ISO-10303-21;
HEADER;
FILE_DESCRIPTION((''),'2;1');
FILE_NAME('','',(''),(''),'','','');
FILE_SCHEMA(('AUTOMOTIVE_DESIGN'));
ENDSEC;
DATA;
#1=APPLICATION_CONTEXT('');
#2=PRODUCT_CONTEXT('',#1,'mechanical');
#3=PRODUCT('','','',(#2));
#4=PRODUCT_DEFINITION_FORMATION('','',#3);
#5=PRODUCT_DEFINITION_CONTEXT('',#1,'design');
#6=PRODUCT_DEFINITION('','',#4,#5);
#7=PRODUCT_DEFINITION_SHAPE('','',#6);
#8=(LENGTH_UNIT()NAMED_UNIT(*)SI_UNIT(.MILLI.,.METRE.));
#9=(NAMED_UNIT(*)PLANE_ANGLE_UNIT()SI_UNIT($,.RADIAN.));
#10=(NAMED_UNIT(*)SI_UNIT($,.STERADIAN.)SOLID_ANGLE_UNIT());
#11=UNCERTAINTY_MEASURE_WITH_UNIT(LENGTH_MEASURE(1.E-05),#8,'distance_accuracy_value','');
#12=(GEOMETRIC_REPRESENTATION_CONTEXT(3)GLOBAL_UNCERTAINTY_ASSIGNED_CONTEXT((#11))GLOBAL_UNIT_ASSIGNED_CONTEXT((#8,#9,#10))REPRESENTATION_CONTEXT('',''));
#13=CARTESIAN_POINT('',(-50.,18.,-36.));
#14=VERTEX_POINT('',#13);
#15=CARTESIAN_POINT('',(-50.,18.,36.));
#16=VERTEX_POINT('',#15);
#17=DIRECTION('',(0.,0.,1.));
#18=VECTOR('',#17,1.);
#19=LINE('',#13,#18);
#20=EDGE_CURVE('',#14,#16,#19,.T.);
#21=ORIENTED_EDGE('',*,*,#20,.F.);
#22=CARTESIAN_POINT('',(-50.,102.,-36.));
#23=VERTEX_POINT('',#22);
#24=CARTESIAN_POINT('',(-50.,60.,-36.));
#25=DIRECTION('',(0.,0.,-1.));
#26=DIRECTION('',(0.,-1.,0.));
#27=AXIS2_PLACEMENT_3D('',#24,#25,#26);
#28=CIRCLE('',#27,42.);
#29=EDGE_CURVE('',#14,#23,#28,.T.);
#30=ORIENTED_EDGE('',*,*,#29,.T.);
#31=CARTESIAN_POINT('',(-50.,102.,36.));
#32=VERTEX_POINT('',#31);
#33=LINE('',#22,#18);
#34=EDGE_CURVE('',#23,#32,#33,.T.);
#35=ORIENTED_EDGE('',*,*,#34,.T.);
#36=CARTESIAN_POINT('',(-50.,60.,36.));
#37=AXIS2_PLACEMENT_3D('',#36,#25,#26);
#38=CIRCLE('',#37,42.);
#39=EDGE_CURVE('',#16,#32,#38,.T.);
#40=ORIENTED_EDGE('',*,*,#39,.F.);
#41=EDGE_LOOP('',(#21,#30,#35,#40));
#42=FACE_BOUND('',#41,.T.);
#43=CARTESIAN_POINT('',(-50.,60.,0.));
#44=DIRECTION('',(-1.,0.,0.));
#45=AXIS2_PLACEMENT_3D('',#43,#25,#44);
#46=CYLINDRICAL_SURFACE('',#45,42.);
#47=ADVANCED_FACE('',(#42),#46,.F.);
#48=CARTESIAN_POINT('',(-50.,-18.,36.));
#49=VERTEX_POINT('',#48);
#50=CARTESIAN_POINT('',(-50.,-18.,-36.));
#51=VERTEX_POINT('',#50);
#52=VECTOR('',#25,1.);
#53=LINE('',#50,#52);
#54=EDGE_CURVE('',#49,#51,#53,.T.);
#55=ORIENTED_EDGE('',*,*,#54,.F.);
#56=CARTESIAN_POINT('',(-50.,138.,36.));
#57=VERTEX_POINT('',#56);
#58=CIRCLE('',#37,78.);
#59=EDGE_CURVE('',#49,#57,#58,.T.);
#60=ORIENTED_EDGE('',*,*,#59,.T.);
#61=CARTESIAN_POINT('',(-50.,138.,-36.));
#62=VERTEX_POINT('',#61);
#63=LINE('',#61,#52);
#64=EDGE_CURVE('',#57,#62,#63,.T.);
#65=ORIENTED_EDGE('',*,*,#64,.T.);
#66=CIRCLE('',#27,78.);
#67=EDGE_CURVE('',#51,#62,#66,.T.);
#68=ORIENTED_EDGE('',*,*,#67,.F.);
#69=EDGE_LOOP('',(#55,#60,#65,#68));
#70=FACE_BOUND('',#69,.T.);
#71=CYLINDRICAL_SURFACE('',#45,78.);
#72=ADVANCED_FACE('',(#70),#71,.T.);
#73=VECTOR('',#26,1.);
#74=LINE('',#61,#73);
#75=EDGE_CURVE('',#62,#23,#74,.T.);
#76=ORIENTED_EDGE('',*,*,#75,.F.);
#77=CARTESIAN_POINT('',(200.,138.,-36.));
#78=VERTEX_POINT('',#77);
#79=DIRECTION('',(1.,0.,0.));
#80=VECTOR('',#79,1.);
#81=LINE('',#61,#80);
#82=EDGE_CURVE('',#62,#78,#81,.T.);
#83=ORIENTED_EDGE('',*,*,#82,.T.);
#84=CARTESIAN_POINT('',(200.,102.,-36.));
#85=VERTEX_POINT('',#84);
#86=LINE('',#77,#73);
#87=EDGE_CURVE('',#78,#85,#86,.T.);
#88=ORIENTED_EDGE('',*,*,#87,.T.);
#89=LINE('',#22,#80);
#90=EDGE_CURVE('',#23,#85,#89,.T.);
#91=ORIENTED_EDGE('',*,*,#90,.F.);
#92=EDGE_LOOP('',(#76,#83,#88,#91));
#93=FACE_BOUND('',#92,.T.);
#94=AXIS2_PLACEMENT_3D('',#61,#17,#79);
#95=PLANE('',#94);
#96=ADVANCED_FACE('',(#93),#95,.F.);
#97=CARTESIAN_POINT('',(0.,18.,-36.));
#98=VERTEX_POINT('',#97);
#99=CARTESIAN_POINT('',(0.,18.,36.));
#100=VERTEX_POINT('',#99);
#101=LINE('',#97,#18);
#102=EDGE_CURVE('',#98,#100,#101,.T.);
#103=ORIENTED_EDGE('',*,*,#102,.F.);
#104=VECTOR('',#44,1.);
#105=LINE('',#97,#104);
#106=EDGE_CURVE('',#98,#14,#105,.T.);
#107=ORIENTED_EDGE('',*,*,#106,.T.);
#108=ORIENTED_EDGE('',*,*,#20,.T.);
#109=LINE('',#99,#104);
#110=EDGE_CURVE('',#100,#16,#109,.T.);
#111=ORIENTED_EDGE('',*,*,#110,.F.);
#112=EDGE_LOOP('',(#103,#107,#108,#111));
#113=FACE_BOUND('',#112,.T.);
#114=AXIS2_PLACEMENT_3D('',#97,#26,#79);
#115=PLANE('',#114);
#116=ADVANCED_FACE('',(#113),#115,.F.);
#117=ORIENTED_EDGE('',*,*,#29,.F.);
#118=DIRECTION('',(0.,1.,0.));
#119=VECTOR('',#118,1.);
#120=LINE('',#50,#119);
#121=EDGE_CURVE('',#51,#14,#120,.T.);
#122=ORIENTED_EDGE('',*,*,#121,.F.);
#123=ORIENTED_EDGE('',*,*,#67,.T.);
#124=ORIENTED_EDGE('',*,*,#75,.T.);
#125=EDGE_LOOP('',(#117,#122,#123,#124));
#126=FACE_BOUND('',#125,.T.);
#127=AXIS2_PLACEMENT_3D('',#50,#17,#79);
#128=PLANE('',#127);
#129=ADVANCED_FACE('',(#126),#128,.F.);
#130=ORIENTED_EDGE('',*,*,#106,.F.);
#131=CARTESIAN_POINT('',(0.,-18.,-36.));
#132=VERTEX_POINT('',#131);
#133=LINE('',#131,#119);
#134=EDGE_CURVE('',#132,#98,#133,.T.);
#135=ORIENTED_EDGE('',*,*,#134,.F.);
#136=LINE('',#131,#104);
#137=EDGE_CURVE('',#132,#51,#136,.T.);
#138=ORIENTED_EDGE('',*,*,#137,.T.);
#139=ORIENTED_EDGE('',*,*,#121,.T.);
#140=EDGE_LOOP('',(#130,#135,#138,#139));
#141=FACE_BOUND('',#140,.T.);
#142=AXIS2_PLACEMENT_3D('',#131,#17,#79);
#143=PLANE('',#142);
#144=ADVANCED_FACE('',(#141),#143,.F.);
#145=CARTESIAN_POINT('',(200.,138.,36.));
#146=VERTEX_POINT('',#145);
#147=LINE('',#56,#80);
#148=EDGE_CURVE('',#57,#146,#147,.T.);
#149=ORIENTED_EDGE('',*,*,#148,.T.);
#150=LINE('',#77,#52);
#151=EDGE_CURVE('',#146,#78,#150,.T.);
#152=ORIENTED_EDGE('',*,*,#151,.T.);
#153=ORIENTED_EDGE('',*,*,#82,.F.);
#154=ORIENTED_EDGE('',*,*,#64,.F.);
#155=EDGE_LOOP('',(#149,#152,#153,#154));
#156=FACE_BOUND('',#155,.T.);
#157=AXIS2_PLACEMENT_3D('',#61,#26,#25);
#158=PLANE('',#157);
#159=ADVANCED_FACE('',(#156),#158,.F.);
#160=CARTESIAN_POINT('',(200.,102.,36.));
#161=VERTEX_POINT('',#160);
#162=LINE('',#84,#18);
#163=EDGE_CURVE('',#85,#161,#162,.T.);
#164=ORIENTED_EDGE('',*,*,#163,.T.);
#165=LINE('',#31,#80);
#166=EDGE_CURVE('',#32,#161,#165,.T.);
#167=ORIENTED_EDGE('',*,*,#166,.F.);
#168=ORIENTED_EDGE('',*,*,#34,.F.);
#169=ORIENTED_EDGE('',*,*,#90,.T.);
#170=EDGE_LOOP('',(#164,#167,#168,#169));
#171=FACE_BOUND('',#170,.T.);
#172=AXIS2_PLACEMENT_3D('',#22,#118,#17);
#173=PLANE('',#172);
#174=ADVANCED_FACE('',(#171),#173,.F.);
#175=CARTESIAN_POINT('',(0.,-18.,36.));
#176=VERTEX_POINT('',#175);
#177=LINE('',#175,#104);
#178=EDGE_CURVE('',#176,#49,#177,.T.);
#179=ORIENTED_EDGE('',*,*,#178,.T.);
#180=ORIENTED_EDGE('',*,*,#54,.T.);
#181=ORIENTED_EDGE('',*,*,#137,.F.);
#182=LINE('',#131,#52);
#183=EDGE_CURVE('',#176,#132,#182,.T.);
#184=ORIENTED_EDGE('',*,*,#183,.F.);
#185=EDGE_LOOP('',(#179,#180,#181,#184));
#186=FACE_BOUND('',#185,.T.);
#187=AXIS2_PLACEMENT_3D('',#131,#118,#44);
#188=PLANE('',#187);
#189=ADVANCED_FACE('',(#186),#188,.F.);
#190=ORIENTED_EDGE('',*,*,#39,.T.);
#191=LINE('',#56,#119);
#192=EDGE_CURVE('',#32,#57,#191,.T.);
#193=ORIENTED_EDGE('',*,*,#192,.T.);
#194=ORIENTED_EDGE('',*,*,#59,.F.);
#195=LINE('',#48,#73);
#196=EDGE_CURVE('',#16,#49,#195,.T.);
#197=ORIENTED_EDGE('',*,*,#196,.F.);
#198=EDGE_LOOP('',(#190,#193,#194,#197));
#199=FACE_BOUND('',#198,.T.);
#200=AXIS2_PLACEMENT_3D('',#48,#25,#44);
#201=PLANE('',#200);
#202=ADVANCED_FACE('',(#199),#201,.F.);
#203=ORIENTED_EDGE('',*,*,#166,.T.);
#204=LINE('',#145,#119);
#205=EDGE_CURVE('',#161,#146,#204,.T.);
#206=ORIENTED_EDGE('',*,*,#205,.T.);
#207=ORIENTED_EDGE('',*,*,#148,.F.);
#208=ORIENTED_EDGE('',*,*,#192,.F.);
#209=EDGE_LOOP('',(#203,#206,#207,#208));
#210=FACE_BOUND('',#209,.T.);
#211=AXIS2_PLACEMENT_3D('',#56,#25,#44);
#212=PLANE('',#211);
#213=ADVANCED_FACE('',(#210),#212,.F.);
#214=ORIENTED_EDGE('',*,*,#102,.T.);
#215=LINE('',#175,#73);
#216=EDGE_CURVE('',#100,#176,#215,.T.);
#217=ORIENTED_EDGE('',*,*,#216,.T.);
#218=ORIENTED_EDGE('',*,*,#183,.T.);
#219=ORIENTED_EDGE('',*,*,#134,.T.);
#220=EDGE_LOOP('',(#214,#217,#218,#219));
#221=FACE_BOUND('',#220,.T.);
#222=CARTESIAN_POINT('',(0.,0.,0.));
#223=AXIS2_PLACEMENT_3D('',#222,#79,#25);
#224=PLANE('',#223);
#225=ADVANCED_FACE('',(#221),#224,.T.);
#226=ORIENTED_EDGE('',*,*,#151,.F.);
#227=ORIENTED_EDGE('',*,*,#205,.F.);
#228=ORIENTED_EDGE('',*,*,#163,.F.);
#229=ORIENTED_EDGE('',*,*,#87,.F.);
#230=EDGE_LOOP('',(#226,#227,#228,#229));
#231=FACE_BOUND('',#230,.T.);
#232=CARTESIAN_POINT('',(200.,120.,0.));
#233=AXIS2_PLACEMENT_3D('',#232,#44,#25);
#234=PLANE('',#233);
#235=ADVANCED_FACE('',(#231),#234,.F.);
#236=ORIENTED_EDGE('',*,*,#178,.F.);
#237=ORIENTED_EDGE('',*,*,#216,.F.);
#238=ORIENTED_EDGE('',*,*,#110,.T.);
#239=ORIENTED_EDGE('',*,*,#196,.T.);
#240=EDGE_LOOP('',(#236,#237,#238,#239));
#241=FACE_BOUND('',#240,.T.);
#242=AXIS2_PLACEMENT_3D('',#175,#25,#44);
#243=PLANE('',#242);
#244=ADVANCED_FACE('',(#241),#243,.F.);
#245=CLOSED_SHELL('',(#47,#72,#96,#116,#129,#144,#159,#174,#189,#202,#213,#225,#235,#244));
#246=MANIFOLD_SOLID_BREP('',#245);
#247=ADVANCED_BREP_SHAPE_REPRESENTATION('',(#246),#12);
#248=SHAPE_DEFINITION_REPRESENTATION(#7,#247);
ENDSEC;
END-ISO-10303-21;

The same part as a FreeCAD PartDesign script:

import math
import FreeCAD as App
import Part
import Sketcher

V = App.Vector

doc = App.newDocument("Part")
params = doc.addObject("Spreadsheet::Sheet", "Params")
for row, (alias, value) in enumerate([
    ("sketch1_width", "36 mm"),
    ("sketch1_height", "72 mm"),
    ("sketch2_radius", "60 mm"),
    ("sketch2_width", "50 mm"),
    ("sketch2_width2", "250 mm"),
], start=1):
    params.set(f"A{row}", alias)
    params.set(f"B{row}", "=" + value)
    params.setAlias(f"B{row}", alias)

body = doc.addObject("PartDesign::Body", "Body")

# Sketch on YZ plane
sketch1 = doc.addObject("Sketcher::SketchObject", "Sketch")
body.addObject(sketch1)
sketch1.AttachmentSupport = (doc.YZ_Plane, [""])
sketch1.MapMode = "FlatFace"
sketch1.addGeometry(Part.LineSegment(V(18, 36, 0), V(-18, 36, 0)), False)
sketch1.addGeometry(Part.LineSegment(V(-18, 36, 0), V(-18, -36, 0)), False)
sketch1.addGeometry(Part.LineSegment(V(-18, -36, 0), V(18, -36, 0)), False)
sketch1.addGeometry(Part.LineSegment(V(18, -36, 0), V(18, 36, 0)), False)
sketch1.addConstraint(Sketcher.Constraint("Coincident", 0, 2, 1, 1))
sketch1.addConstraint(Sketcher.Constraint("Coincident", 1, 2, 2, 1))
sketch1.addConstraint(Sketcher.Constraint("Coincident", 2, 2, 3, 1))
sketch1.addConstraint(Sketcher.Constraint("Coincident", 3, 2, 0, 1))
sketch1.addConstraint(Sketcher.Constraint("Horizontal", 0))
sketch1.addConstraint(Sketcher.Constraint("Vertical", 1))
sketch1.addConstraint(Sketcher.Constraint("Horizontal", 2))
sketch1.addConstraint(Sketcher.Constraint("Vertical", 3))
sketch1.addConstraint(Sketcher.Constraint("Symmetric", 0, 2, 2, 2, -1, 1))
sketch1.addConstraint(Sketcher.Constraint("DistanceX", 0, 2, 0, 1, 36.0))
sketch1.addConstraint(Sketcher.Constraint("DistanceY", 1, 2, 1, 1, 72.0))
sketch1.setExpression("Constraints[9]", "Params.sketch1_width")
sketch1.setExpression("Constraints[10]", "Params.sketch1_height")

# Sketch on XY plane
sketch2 = doc.addObject("Sketcher::SketchObject", "Sketch001")
body.addObject(sketch2)
sketch2.AttachmentSupport = (doc.XY_Plane, [""])
sketch2.MapMode = "FlatFace"
sketch2.addGeometry(Part.LineSegment(V(0, 0, 0), V(-50, 0, 0)), False)
sketch2.addGeometry(Part.ArcOfCircle(Part.Circle(V(-50, 60, 0), V(0, 0, 1), 60), math.radians(90), math.radians(270)), False)
sketch2.addGeometry(Part.LineSegment(V(-50, 120, 0), V(200, 120, 0)), False)
sketch2.addConstraint(Sketcher.Constraint("Tangent", 0, 2, 1, 2))
sketch2.addConstraint(Sketcher.Constraint("Tangent", 1, 1, 2, 1))
sketch2.addConstraint(Sketcher.Constraint("Horizontal", 0))
sketch2.addConstraint(Sketcher.Constraint("Horizontal", 2))
sketch2.addConstraint(Sketcher.Constraint("Coincident", 0, 1, -1, 1))
sketch2.addConstraint(Sketcher.Constraint("Radius", 1, 60.0))
sketch2.addConstraint(Sketcher.Constraint("DistanceX", 0, 2, 0, 1, 50.0))
sketch2.addConstraint(Sketcher.Constraint("DistanceX", 2, 1, 2, 2, 250.0))
sketch2.setExpression("Constraints[5]", "Params.sketch2_radius")
sketch2.setExpression("Constraints[6]", "Params.sketch2_width")
sketch2.setExpression("Constraints[7]", "Params.sketch2_width2")
doc.recompute()

additivepipe = doc.addObject("PartDesign::AdditivePipe", "AdditivePipe")
body.addObject(additivepipe)
additivepipe.Profile = sketch1
additivepipe.Spine = (sketch2, ["Edge1", "Edge2", "Edge3"])

doc.recompute()
